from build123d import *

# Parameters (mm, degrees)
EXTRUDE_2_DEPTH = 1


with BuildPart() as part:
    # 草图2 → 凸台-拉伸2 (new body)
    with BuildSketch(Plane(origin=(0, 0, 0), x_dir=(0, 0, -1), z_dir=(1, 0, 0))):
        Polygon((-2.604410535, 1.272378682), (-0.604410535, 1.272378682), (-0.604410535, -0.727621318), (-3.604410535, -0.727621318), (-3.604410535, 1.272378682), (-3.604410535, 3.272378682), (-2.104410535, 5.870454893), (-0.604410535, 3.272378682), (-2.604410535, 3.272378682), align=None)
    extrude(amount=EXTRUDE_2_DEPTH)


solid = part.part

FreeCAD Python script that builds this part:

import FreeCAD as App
import Part
import Sketcher
from FreeCAD import Vector
Q = App.Units.Quantity

doc = App.newDocument("Part")
body = doc.addObject("PartDesign::Body", "Body")

# Sketch on YZ plane
sketch1 = body.newObject("Sketcher::SketchObject", "Sketch")
sketch1.AttachmentSupport = (doc.getObject("YZ_Plane"), [""])
sketch1.MapMode = "FlatFace"
sketch1.addGeometry([
    Part.LineSegment(Vector(1.3, 0.6, 0), Vector(1.3, 2.6, 0)),  # 0
    Part.LineSegment(Vector(1.3, 2.6, 0), Vector(3.3, 2.6, 0)),  # 1
    Part.LineSegment(Vector(3.3, 2.6, 0), Vector(3.3, 0.6, 0)),  # 2
    Part.LineSegment(Vector(3.3, 0.6, 0), Vector(5.9, 2.1, 0)),  # 3
    Part.LineSegment(Vector(5.9, 2.1, 0), Vector(3.3, 3.6, 0)),  # 4
    Part.LineSegment(Vector(3.3, 3.6, 0), Vector(-0.7, 3.6, 0)),  # 5
    Part.LineSegment(Vector(-0.7, 3.6, 0), Vector(-0.7, 0.6, 0)),  # 6
    Part.LineSegment(Vector(-0.7, 0.6, 0), Vector(1.3, 0.6, 0)),  # 7
], False)
sketch1.addConstraint([
    Sketcher.Constraint("Coincident", 0, 2, 1, 1),
    Sketcher.Constraint("Coincident", 1, 2, 2, 1),
    Sketcher.Constraint("Coincident", 2, 2, 3, 1),
    Sketcher.Constraint("Coincident", 3, 2, 4, 1),
    Sketcher.Constraint("Coincident", 4, 2, 5, 1),
    Sketcher.Constraint("Coincident", 5, 2, 6, 1),
    Sketcher.Constraint("Coincident", 6, 2, 7, 1),
    Sketcher.Constraint("Coincident", 7, 2, 0, 1),
    Sketcher.Constraint("Vertical", 0),
    Sketcher.Constraint("Horizontal", 1),
    Sketcher.Constraint("Vertical", 2),
    Sketcher.Constraint("Horizontal", 5),
    Sketcher.Constraint("Vertical", 6),
    Sketcher.Constraint("Horizontal", 7),
    Sketcher.Constraint("Horizontal", 2, 2, 6, 2),
    Sketcher.Constraint("Vertical", 2, 2, 4, 2),
    Sketcher.Constraint("Equal", 1, 7),
    Sketcher.Constraint("Equal", 7, 0),
    Sketcher.Constraint("Equal", 3, 4),
    Sketcher.Constraint("DistanceX", 1, 1, 1, 2, 2.0),
    Sketcher.Constraint("DistanceY", 6, 2, 6, 1, 3.0),
    Sketcher.Constraint("Angle", 3, Q("30 deg")),
    Sketcher.Constraint("DistanceX", -1, 1, 0, 2, 1.272379),
    Sketcher.Constraint("DistanceY", -1, 1, 0, 2, 2.604411),
])
pad1 = body.newObject("PartDesign::Pad", "Pad")
pad1.Profile = sketch1
pad1.Length = 1

doc.recompute()
